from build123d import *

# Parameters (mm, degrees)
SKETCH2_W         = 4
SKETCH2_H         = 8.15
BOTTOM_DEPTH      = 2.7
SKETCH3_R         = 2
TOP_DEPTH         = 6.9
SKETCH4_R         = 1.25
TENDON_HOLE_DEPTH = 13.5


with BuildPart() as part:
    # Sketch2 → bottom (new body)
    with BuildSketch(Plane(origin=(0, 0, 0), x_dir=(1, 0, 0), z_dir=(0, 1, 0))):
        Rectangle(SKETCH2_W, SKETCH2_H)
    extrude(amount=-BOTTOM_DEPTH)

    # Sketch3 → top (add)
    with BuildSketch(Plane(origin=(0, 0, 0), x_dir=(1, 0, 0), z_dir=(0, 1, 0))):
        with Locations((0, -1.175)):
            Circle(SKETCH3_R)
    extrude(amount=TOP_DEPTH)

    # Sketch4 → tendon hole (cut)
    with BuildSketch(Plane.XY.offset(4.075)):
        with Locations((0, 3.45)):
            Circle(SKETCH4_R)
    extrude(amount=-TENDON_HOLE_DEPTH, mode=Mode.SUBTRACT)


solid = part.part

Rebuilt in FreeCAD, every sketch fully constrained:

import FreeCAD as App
import Part
import Sketcher

V = App.Vector

doc = App.newDocument("Part")
body = doc.addObject("PartDesign::Body", "Body")

sketch1 = doc.addObject("Sketcher::SketchObject", "Sketch")
body.addObject(sketch1)
sketch1.AttachmentSupport = (doc.XZ_Plane, [""])
sketch1.MapMode = "FlatFace"
sketch1.addGeometry(Part.LineSegment(V(-2, -4.1, 0), V(-2, 4.1, 0)), False)
sketch1.addGeometry(Part.LineSegment(V(-2, 4.1, 0), V(2, 4.1, 0)), False)
sketch1.addGeometry(Part.LineSegment(V(2, 4.1, 0), V(2, -4.1, 0)), False)
sketch1.addGeometry(Part.LineSegment(V(2, -4.1, 0), V(-2, -4.1, 0)), False)
sketch1.addConstraint(Sketcher.Constraint("Coincident", 0, 2, 1, 1))
sketch1.addConstraint(Sketcher.Constraint("Coincident", 1, 2, 2, 1))
sketch1.addConstraint(Sketcher.Constraint("Coincident", 2, 2, 3, 1))
sketch1.addConstraint(Sketcher.Constraint("Coincident", 3, 2, 0, 1))
sketch1.addConstraint(Sketcher.Constraint("Vertical", 0))
sketch1.addConstraint(Sketcher.Constraint("Horizontal", 1))
sketch1.addConstraint(Sketcher.Constraint("Vertical", 2))
sketch1.addConstraint(Sketcher.Constraint("Horizontal", 3))
sketch1.addConstraint(Sketcher.Constraint("Symmetric", 0, 2, 2, 2, -1, 1))
sketch1.addConstraint(Sketcher.Constraint("DistanceX", 1, 1, 1, 2, 4.0))
sketch1.addConstraint(Sketcher.Constraint("DistanceY", 0, 1, 0, 2, 8.15))
pad1 = doc.addObject("PartDesign::Pad", "Pad")
body.addObject(pad1)
pad1.Profile = sketch1
pad1.Length = 2.7

sketch2 = doc.addObject("Sketcher::SketchObject", "Sketch001")
body.addObject(sketch2)
sketch2.AttachmentSupport = (doc.XZ_Plane, [""])
sketch2.MapMode = "FlatFace"
sketch2.addGeometry(Part.Circle(V(0, 1.2, 0), V(0, 0, 1), 2), False)
sketch2.addConstraint(Sketcher.Constraint("PointOnObject", 0, 3, -2))
sketch2.addConstraint(Sketcher.Constraint("Diameter", 0, 4.0))
sketch2.addConstraint(Sketcher.Constraint("DistanceY", -1, 1, 0, 3, 1.175))
pad2 = doc.addObject("PartDesign::Pad", "Pad001")
body.addObject(pad2)
pad2.Profile = sketch2
pad2.Length = 6.9
pad2.Reversed = True

sketch3 = doc.addObject("Sketcher::SketchObject", "Sketch002")
body.addObject(sketch3)
sketch3.AttachmentSupport = (doc.XY_Plane, [""])
sketch3.MapMode = "FlatFace"
sketch3.AttachmentOffset = App.Placement(V(0, 0, 4.075), App.Rotation())
sketch3.addGeometry(Part.Circle(V(0, 3.5, 0), V(0, 0, 1), 1.2), False)
sketch3.addConstraint(Sketcher.Constraint("PointOnObject", 0, 3, -2))
sketch3.addConstraint(Sketcher.Constraint("Diameter", 0, 2.5))
sketch3.addConstraint(Sketcher.Constraint("DistanceY", -1, 1, 0, 3, 3.45))
pocket1 = doc.addObject("PartDesign::Pocket", "Pocket")
body.addObject(pocket1)
pocket1.Profile = sketch3
pocket1.Length = 13.5

doc.recompute()
